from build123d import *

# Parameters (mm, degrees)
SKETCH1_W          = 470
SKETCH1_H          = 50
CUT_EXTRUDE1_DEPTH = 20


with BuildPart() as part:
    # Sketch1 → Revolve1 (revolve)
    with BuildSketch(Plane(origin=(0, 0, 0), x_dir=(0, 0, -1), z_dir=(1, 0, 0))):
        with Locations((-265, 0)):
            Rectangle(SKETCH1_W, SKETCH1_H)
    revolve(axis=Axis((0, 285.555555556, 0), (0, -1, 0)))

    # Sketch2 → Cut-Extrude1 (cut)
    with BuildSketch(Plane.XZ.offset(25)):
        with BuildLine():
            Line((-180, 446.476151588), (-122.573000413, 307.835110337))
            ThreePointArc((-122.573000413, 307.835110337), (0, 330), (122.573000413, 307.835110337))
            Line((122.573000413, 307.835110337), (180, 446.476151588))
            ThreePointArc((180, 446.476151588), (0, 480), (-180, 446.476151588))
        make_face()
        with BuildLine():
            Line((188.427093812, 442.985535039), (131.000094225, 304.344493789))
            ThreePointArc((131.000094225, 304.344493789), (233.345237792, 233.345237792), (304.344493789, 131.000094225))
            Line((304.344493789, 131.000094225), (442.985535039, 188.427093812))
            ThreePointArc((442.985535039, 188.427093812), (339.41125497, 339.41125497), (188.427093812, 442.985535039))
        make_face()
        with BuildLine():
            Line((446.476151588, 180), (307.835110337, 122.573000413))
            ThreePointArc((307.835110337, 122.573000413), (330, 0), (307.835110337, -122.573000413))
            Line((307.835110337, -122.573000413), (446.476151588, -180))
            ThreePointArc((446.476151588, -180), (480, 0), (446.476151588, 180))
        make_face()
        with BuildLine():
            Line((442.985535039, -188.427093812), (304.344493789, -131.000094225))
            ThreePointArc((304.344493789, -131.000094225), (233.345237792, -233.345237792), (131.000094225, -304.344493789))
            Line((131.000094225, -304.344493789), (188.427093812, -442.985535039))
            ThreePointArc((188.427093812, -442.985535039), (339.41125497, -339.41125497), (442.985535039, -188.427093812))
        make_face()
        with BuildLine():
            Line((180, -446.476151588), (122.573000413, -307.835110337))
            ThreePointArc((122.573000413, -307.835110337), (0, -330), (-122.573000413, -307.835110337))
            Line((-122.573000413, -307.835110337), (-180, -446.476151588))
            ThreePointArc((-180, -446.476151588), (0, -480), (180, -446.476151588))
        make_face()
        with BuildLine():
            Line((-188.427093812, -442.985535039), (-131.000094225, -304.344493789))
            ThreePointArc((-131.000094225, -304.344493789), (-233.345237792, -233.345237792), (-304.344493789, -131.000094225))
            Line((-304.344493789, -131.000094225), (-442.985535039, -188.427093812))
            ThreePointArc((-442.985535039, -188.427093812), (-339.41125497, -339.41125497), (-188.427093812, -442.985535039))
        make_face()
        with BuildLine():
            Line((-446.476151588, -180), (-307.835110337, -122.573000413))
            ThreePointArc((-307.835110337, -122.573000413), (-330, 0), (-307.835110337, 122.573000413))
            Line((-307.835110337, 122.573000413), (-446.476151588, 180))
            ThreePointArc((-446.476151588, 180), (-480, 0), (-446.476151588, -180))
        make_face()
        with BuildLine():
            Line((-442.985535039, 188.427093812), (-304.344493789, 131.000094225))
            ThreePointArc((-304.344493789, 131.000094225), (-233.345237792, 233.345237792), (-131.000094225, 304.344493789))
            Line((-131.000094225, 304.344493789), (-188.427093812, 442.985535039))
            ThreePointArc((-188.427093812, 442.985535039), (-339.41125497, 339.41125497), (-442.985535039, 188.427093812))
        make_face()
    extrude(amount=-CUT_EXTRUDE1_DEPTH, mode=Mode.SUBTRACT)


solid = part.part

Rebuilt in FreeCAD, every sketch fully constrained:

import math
import FreeCAD as App
import Part
import Sketcher
from FreeCAD import Vector
Q = App.Units.Quantity


def add_polygon(sketch, points):
    """Adds a closed chain of lines whose ends are joined by coincident constraints."""
    first, n = sketch.GeometryCount, len(points)
    for a, b in zip(points, points[1:] + points[:1]):
        sketch.addGeometry(Part.LineSegment(App.Vector(*a, 0), App.Vector(*b, 0)), False)
    for i in range(n):
        sketch.addConstraint(Sketcher.Constraint("Coincident", first + i, 2, first + (i + 1) % n, 1))

doc = App.newDocument("Part")
body = doc.addObject("PartDesign::Body", "Body")

# Sketch on YZ plane
sketch1 = body.newObject("Sketcher::SketchObject", "Sketch")
sketch1.AttachmentSupport = (doc.getObject("YZ_Plane"), [""])
sketch1.MapMode = "FlatFace"
add_polygon(sketch1, [(25, 500), (-25, 500), (-25, 30), (25, 30)])  # lines 0-3
sketch1.addConstraint([
    Sketcher.Constraint("Horizontal", 0),
    Sketcher.Constraint("Vertical", 1),
    Sketcher.Constraint("Horizontal", 2),
    Sketcher.Constraint("Vertical", 3),
    Sketcher.Constraint("DistanceX", 0, 2, 0, 1, Q("50 mm")),
    Sketcher.Constraint("DistanceY", 1, 2, 1, 1, Q("470 mm")),
    Sketcher.Constraint("DistanceX", 0, 2, -1, 1, Q("25 mm")),
    Sketcher.Constraint("DistanceY", -1, 1, 0, 2, Q("500 mm")),
])
revolution = body.newObject("PartDesign::Revolution", "Revolution")
revolution.Profile = sketch1
revolution.ReferenceAxis = (sketch1, ["H_Axis"])
revolution.Angle = 360

# Sketch on XZ plane
sketch2 = body.newObject("Sketcher::SketchObject", "Sketch001")
sketch2.AttachmentSupport = (doc.getObject("XZ_Plane"), [""])
sketch2.MapMode = "FlatFace"
sketch2.AttachmentOffset = App.Placement(Vector(0, 0, 25), App.Rotation())
sketch2.addGeometry([
    Part.LineSegment(Vector(-180, 446.476152, 0), Vector(-122.573, 307.83511, 0)),  # 0
    Part.ArcOfCircle(Part.Circle(Vector(0, -20, 0), Vector(0, 0, 1), 350), math.radians(69.499927), math.radians(110.500073)),  # 1
    Part.LineSegment(Vector(122.573, 307.83511, 0), Vector(180, 446.476152, 0)),  # 2
    Part.ArcOfCircle(Part.Circle(Vector(0, -20, 0), Vector(0, 0, 1), 500), math.radians(68.899804), math.radians(111.100196)),  # 3
    Part.LineSegment(Vector(188.427094, 442.985535, 0), Vector(131.000094, 304.344494, 0)),  # 4
    Part.ArcOfCircle(Part.Circle(Vector(-14.142136, -14.142136, 0), Vector(0, 0, 1), 350), math.radians(24.499927), math.radians(65.500073)),  # 5
    Part.LineSegment(Vector(304.344494, 131.000094, 0), Vector(442.985535, 188.427094, 0)),  # 6
    Part.ArcOfCircle(Part.Circle(Vector(-14.142136, -14.142136, 0), Vector(0, 0, 1), 500), math.radians(23.899804), math.radians(66.100196)),  # 7
    Part.LineSegment(Vector(446.476152, 180, 0), Vector(307.83511, 122.573, 0)),  # 8
    Part.ArcOfCircle(Part.Circle(Vector(-20, 0, 0), Vector(0, 0, 1), 350), math.radians(-20.500073), math.radians(20.500073)),  # 9
    Part.LineSegment(Vector(307.83511, -122.573, 0), Vector(446.476152, -180, 0)),  # 10
    Part.ArcOfCircle(Part.Circle(Vector(-20, 0, 0), Vector(0, 0, 1), 500), math.radians(-21.100196), math.radians(21.100196)),  # 11
    Part.LineSegment(Vector(442.985535, -188.427094, 0), Vector(304.344494, -131.000094, 0)),  # 12
    Part.ArcOfCircle(Part.Circle(Vector(-14.142136, 14.142136, 0), Vector(0, 0, 1), 350), math.radians(-65.500073), math.radians(-24.499927)),  # 13
    Part.LineSegment(Vector(131.000094, -304.344494, 0), Vector(188.427094, -442.985535, 0)),  # 14
    Part.ArcOfCircle(Part.Circle(Vector(-14.142136, 14.142136, 0), Vector(0, 0, 1), 500), math.radians(-66.100196), math.radians(-23.899804)),  # 15
    Part.LineSegment(Vector(180, -446.476152, 0), Vector(122.573, -307.83511, 0)),  # 16
    Part.ArcOfCircle(Part.Circle(Vector(0, 20, 0), Vector(0, 0, 1), 350), math.radians(-110.500073), math.radians(-69.499927)),  # 17
    Part.LineSegment(Vector(-122.573, -307.83511, 0), Vector(-180, -446.476152, 0)),  # 18
    Part.ArcOfCircle(Part.Circle(Vector(0, 20, 0), Vector(0, 0, 1), 500), math.radians(-111.100196), math.radians(-68.899804)),  # 19
    Part.LineSegment(Vector(-188.427094, -442.985535, 0), Vector(-131.000094, -304.344494, 0)),  # 20
    Part.ArcOfCircle(Part.Circle(Vector(14.142136, 14.142136, 0), Vector(0, 0, 1), 350), math.radians(-155.500073), math.radians(-114.499927)),  # 21
    Part.LineSegment(Vector(-304.344494, -131.000094, 0), Vector(-442.985535, -188.427094, 0)),  # 22
    Part.ArcOfCircle(Part.Circle(Vector(14.142136, 14.142136, 0), Vector(0, 0, 1), 500), math.radians(-156.100196), math.radians(-113.899804)),  # 23
    Part.LineSegment(Vector(-446.476152, -180, 0), Vector(-307.83511, -122.573, 0)),  # 24
    Part.ArcOfCircle(Part.Circle(Vector(20, 0, 0), Vector(0, 0, 1), 350), math.radians(159.499927), math.radians(200.500073)),  # 25
    Part.LineSegment(Vector(-307.83511, 122.573, 0), Vector(-446.476152, 180, 0)),  # 26
    Part.ArcOfCircle(Part.Circle(Vector(20, 0, 0), Vector(0, 0, 1), 500), math.radians(158.899804), math.radians(201.100196)),  # 27
    Part.LineSegment(Vector(-442.985535, 188.427094, 0), Vector(-304.344494, 131.000094, 0)),  # 28
    Part.ArcOfCircle(Part.Circle(Vector(14.142136, -14.142136, 0), Vector(0, 0, 1), 350), math.radians(114.499927), math.radians(155.500073)),  # 29
    Part.LineSegment(Vector(-131.000094, 304.344494, 0), Vector(-188.427094, 442.985535, 0)),  # 30
    Part.ArcOfCircle(Part.Circle(Vector(14.142136, -14.142136, 0), Vector(0, 0, 1), 500), math.radians(113.899804), math.radians(156.100196)),  # 31
], False)
sketch2.addConstraint([
    Sketcher.Constraint("Coincident", 0, 2, 1, 2),
    Sketcher.Constraint("Coincident", 1, 1, 2, 1),
    Sketcher.Constraint("Coincident", 2, 2, 3, 1),
    Sketcher.Constraint("Coincident", 3, 2, 0, 1),
    Sketcher.Constraint("Coincident", 4, 2, 5, 2),
    Sketcher.Constraint("Coincident", 5, 1, 6, 1),
    Sketcher.Constraint("Coincident", 6, 2, 7, 1),
    Sketcher.Constraint("Coincident", 7, 2, 4, 1),
    Sketcher.Constraint("Coincident", 8, 2, 9, 2),
    Sketcher.Constraint("Coincident", 9, 1, 10, 1),
    Sketcher.Constraint("Coincident", 10, 2, 11, 1),
    Sketcher.Constraint("Coincident", 11, 2, 8, 1),
    Sketcher.Constraint("Coincident", 12, 2, 13, 2),
    Sketcher.Constraint("Coincident", 13, 1, 14, 1),
    Sketcher.Constraint("Coincident", 14, 2, 15, 1),
    Sketcher.Constraint("Coincident", 15, 2, 12, 1),
    Sketcher.Constraint("Coincident", 16, 2, 17, 2),
    Sketcher.Constraint("Coincident", 17, 1, 18, 1),
    Sketcher.Constraint("Coincident", 18, 2, 19, 1),
    Sketcher.Constraint("Coincident", 19, 2, 16, 1),
    Sketcher.Constraint("Coincident", 20, 2, 21, 2),
    Sketcher.Constraint("Coincident", 21, 1, 22, 1),
    Sketcher.Constraint("Coincident", 22, 2, 23, 1),
    Sketcher.Constraint("Coincident", 23, 2, 20, 1),
    Sketcher.Constraint("Coincident", 24, 2, 25, 2),
    Sketcher.Constraint("Coincident", 25, 1, 26, 1),
    Sketcher.Constraint("Coincident", 26, 2, 27, 1),
    Sketcher.Constraint("Coincident", 27, 2, 24, 1),
    Sketcher.Constraint("Coincident", 28, 2, 29, 2),
    Sketcher.Constraint("Coincident", 29, 1, 30, 1),
    Sketcher.Constraint("Coincident", 30, 2, 31, 1),
    Sketcher.Constraint("Coincident", 31, 2, 28, 1),
    Sketcher.Constraint("Coincident", 3, 3, 1, 3),
    Sketcher.Constraint("Coincident", 7, 3, 5, 3),
    Sketcher.Constraint("Coincident", 11, 3, 9, 3),
    Sketcher.Constraint("Coincident", 15, 3, 13, 3),
    Sketcher.Constraint("Coincident", 19, 3, 17, 3),
    Sketcher.Constraint("Coincident", 23, 3, 21, 3),
    Sketcher.Constraint("Coincident", 27, 3, 25, 3),
    Sketcher.Constraint("Coincident", 31, 3, 29, 3),
    Sketcher.Constraint("Equal", 1, 5),
    Sketcher.Constraint("Equal", 3, 7),
    Sketcher.Constraint("Equal", 5, 9),
    Sketcher.Constraint("Equal", 7, 11),
    Sketcher.Constraint("Equal", 9, 13),
    Sketcher.Constraint("Equal", 11, 15),
    Sketcher.Constraint("Equal", 13, 17),
    Sketcher.Constraint("Equal", 15, 19),
    Sketcher.Constraint("Equal", 17, 21),
    Sketcher.Constraint("Equal", 19, 23),
    Sketcher.Constraint("Equal", 21, 25),
    Sketcher.Constraint("Equal", 23, 27),
    Sketcher.Constraint("Equal", 25, 29),
    Sketcher.Constraint("Equal", 27, 31),
    Sketcher.Constraint("Symmetric", 1, 3, 17, 3, -1, 1),
    Sketcher.Constraint("Symmetric", 5, 3, 21, 3, -1, 1),
    Sketcher.Constraint("Symmetric", 9, 3, 25, 3, -1, 1),
    Sketcher.Constraint("Symmetric", 13, 3, 29, 3, -1, 1),
    Sketcher.Constraint("Symmetric", 13, 3, 21, 3, -2),
    Sketcher.Constraint("Symmetric", 0, 2, 1, 1, -2),
    Sketcher.Constraint("Symmetric", 9, 1, 24, 2, -2),
    Sketcher.Constraint("Parallel", 2, 4),
    Sketcher.Constraint("Perpendicular", 0, 6),
    Sketcher.Constraint("Parallel", 6, 8),
    Sketcher.Constraint("Perpendicular", 4, 10),
    Sketcher.Constraint("Parallel", 10, 12),
    Sketcher.Constraint("Perpendicular", 8, 14),
    Sketcher.Constraint("Parallel", 14, 16),
    Sketcher.Constraint("Perpendicular", 12, 18),
    Sketcher.Constraint("Parallel", 18, 20),
    Sketcher.Constraint("Perpendicular", 16, 22),
    Sketcher.Constraint("Parallel", 22, 24),
    Sketcher.Constraint("Perpendicular", 20, 26),
    Sketcher.Constraint("Parallel", 26, 28),
    Sketcher.Constraint("Perpendicular", 24, 30),
    Sketcher.Constraint("Horizontal", 16, 2, 17, 1),
    Sketcher.Constraint("Horizontal", 13, 1, 20, 2),
    Sketcher.Constraint("Horizontal", 12, 2, 21, 1),
    Sketcher.Constraint("Horizontal", 8, 2, 25, 1),
    Sketcher.Constraint("Horizontal", 5, 1, 28, 2),
    Sketcher.Constraint("Horizontal", 4, 2, 29, 1),
    Sketcher.Constraint("Vertical", 8, 2, 9, 1),
    Sketcher.Constraint("Vertical", 5, 1, 12, 2),
    Sketcher.Constraint("Vertical", 4, 2, 13, 1),
    Sketcher.Constraint("Vertical", 1, 1, 16, 2),
    Sketcher.Constraint("Equal", 0, 2),
    Sketcher.Constraint("Equal", 2, 4),
    Sketcher.Constraint("Equal", 4, 6),
    Sketcher.Constraint("Equal", 6, 8),
    Sketcher.Constraint("Radius", 1, Q("350 mm")),
    Sketcher.Constraint("Radius", 3, Q("500 mm")),
    Sketcher.Constraint("DistanceY", 1, 3, -1, 1, Q("20 mm")),
    Sketcher.Constraint("DistanceX", 9, 3, -1, 1, Q("20 mm")),
    Sketcher.Constraint("DistanceX", -1, 1, 2, 2, Q("180 mm")),
    Sketcher.Constraint("Angle", 0, Q("-67.5 deg")),
    Sketcher.Constraint("DistanceX", 21, 3, 6, 2, Q("428.843399 mm")),
    Sketcher.Constraint("DistanceY", 14, 2, 29, 3, Q("428.843399 mm")),
])
pocket1 = body.newObject("PartDesign::Pocket", "Pocket")
pocket1.Profile = sketch2
pocket1.Length = 20

doc.recompute()
